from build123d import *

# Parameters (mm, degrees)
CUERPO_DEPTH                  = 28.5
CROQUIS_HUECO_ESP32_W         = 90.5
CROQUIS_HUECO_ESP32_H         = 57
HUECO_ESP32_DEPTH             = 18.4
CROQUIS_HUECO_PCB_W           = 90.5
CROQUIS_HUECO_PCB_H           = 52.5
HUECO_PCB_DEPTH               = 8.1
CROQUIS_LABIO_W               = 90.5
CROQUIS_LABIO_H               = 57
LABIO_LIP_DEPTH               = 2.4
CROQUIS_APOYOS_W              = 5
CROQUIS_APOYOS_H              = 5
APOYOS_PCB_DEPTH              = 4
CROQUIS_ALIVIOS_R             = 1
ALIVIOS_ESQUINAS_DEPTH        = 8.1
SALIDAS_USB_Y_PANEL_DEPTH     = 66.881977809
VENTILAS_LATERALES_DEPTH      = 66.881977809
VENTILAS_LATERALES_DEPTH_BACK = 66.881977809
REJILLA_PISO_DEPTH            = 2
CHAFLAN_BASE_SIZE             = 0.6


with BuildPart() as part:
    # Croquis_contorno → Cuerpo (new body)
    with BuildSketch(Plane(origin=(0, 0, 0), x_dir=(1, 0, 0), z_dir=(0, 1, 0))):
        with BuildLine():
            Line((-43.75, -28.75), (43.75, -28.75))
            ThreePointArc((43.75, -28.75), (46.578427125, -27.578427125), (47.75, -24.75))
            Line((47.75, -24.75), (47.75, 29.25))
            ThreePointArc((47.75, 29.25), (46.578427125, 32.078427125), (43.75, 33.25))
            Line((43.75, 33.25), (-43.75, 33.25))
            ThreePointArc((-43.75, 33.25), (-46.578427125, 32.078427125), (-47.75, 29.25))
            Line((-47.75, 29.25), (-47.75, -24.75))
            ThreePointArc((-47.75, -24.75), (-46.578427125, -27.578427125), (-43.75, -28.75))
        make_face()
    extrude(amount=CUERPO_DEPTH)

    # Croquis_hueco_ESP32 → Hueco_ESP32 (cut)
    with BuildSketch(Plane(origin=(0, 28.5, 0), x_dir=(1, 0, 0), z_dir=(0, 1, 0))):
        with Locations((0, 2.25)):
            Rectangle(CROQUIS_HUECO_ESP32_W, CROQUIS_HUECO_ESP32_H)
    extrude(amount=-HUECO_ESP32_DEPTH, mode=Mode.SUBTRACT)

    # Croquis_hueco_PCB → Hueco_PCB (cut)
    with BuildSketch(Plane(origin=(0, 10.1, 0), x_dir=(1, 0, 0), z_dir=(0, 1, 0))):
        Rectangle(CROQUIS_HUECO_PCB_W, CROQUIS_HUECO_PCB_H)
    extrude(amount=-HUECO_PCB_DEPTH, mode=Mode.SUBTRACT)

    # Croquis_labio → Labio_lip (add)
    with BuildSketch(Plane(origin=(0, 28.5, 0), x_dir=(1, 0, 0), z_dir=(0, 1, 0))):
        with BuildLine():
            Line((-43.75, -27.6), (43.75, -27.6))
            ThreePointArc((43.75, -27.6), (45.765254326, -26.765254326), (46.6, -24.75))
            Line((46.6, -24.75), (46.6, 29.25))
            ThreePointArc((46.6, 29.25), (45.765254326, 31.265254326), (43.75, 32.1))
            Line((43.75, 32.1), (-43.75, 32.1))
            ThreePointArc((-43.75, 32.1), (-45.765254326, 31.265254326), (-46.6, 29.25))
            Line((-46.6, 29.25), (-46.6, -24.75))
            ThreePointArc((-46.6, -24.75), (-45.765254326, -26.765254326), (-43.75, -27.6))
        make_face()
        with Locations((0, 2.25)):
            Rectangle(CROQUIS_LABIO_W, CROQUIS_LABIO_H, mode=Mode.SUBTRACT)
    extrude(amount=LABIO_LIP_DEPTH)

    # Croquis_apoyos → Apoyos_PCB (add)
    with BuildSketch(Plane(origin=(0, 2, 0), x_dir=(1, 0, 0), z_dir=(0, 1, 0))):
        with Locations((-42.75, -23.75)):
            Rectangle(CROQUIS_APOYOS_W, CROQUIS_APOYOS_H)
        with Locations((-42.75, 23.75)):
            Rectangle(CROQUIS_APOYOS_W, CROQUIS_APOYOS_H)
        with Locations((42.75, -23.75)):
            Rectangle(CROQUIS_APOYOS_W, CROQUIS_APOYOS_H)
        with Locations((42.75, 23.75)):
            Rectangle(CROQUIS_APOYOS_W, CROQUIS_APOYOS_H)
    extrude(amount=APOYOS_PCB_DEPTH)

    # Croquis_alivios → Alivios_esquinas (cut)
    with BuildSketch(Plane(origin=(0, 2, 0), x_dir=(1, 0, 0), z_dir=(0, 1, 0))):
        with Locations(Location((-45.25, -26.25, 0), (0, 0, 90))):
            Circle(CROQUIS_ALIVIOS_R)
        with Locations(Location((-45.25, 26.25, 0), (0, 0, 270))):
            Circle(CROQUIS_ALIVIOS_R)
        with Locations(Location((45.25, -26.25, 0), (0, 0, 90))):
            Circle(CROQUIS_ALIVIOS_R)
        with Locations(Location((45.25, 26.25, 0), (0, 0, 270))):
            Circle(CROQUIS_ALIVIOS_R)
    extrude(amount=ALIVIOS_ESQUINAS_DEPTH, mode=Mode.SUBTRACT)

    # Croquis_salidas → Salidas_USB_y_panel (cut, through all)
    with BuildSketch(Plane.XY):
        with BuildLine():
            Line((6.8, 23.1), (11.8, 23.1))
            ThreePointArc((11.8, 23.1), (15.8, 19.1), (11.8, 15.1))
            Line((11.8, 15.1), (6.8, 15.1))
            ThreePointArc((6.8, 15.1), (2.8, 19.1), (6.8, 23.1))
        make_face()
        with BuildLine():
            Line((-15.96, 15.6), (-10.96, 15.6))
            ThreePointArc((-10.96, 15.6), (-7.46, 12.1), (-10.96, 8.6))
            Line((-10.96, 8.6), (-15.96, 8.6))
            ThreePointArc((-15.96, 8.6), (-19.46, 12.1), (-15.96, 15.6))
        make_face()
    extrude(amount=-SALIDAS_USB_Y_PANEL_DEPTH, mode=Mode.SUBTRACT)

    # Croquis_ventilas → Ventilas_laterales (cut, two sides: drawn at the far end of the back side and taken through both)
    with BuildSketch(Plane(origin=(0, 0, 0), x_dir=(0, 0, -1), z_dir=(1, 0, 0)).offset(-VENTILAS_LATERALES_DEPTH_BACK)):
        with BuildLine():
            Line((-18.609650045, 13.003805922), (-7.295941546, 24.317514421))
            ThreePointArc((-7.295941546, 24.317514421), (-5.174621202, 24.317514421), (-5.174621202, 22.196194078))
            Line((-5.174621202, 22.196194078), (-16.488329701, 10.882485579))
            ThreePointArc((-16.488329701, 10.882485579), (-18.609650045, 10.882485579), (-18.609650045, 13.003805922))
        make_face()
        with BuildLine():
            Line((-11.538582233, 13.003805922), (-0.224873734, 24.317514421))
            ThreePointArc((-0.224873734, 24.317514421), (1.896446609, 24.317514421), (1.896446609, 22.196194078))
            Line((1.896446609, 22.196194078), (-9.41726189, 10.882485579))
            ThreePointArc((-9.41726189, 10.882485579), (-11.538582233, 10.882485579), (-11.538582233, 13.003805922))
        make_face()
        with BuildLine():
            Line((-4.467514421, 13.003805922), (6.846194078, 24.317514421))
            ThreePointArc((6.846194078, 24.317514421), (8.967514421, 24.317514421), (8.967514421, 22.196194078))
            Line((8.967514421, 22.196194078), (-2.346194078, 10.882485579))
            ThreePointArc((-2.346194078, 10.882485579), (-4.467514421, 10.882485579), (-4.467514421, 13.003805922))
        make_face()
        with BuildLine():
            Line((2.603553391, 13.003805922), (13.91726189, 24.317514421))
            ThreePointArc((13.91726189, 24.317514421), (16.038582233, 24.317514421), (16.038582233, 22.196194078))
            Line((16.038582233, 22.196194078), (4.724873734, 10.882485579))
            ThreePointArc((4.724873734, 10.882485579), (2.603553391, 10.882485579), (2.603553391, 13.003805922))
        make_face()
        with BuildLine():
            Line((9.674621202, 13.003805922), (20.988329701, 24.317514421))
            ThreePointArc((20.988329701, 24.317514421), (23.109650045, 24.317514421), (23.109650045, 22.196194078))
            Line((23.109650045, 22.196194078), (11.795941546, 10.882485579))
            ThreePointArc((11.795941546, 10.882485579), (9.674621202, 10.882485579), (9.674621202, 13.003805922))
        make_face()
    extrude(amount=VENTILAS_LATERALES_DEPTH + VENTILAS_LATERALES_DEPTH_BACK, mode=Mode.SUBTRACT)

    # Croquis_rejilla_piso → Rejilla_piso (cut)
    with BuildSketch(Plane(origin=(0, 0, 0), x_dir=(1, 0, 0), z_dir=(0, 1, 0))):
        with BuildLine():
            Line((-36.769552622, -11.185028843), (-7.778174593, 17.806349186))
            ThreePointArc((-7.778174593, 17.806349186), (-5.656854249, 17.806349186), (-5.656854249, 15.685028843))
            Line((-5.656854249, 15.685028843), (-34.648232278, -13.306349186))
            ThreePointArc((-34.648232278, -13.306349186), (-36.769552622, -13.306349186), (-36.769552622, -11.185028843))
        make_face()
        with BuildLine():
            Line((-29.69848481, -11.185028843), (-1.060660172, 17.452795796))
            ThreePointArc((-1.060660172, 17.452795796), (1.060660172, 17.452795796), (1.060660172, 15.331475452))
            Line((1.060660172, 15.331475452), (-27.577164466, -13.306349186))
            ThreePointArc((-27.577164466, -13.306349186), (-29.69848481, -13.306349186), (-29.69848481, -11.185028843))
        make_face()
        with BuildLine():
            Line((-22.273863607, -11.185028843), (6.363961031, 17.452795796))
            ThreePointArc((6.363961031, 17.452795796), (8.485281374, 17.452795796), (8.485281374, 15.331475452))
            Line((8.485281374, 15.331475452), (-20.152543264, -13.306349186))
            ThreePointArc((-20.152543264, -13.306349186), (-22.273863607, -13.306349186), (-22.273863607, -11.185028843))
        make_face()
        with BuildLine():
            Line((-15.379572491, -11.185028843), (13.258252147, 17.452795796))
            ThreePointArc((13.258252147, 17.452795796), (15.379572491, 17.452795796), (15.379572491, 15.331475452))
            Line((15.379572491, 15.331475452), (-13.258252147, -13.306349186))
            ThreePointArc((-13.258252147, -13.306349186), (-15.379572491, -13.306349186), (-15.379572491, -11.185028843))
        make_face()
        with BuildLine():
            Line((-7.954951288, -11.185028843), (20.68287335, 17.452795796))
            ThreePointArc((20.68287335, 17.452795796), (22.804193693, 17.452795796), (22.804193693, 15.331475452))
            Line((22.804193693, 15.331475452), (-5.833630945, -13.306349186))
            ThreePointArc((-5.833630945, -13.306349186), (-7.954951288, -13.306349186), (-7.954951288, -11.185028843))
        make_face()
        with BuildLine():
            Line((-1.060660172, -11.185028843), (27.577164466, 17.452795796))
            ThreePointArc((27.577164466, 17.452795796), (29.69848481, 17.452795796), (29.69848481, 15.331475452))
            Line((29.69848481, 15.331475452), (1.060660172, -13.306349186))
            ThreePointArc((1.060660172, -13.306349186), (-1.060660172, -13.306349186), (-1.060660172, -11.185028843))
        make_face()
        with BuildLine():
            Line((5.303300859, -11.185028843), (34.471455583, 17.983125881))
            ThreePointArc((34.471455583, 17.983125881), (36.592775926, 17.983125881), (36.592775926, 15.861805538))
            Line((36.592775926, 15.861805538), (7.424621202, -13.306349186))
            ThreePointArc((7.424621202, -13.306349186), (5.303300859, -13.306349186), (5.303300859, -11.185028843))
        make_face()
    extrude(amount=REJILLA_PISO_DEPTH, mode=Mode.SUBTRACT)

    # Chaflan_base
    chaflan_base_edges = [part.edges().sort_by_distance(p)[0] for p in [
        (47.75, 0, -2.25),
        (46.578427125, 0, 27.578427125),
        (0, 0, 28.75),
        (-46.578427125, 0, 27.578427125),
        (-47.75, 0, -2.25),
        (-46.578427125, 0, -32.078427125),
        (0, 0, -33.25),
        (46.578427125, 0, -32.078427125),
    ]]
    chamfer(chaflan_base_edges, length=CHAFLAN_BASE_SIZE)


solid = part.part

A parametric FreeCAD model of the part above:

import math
import FreeCAD as App
import Part
import Sketcher
Q = App.Units.Quantity


def edges_at(feature, points):
    """Names of the edges that pass closest to the given points."""
    edges = feature.Shape.Edges
    near = lambda p: min(range(len(edges)), key=lambda i: edges[i].distToShape(Part.Vertex(*p))[0])
    return sorted({f"Edge{near(p) + 1}" for p in points})


def add_polygon(sketch, points):
    """Adds a closed chain of lines whose ends are joined by coincident constraints."""
    first, n = sketch.GeometryCount, len(points)
    for a, b in zip(points, points[1:] + points[:1]):
        sketch.addGeometry(Part.LineSegment(App.Vector(*a, 0), App.Vector(*b, 0)), False)
    for i in range(n):
        sketch.addConstraint(Sketcher.Constraint("Coincident", first + i, 2, first + (i + 1) % n, 1))

doc = App.newDocument("Part")
body = doc.addObject("PartDesign::Body", "Body")

# Sketch on XZ plane
sketch1 = body.newObject("Sketcher::SketchObject", "Sketch")
sketch1.AttachmentSupport = (doc.getObject("XZ_Plane"), [""])
sketch1.MapMode = "FlatFace"
sketch1.addGeometry([
    Part.LineSegment(App.Vector(-43.8, 28.8, 0), App.Vector(43.8, 28.8, 0)),  # 0
    Part.ArcOfCircle(Part.Circle(App.Vector(43.8, 24.8, 0), App.Vector(0, 0, 1), 4), math.radians(0), math.radians(90)),  # 1
    Part.LineSegment(App.Vector(47.8, 24.8, 0), App.Vector(47.8, -29.2, 0)),  # 2
    Part.ArcOfCircle(Part.Circle(App.Vector(43.8, -29.3, 0), App.Vector(0, 0, 1), 4), math.radians(-90), math.radians(0)),  # 3
    Part.LineSegment(App.Vector(43.8, -33.2, 0), App.Vector(-43.8, -33.2, 0)),  # 4
    Part.ArcOfCircle(Part.Circle(App.Vector(-43.8, -29.3, 0), App.Vector(0, 0, 1), 4), math.radians(180), math.radians(270)),  # 5
    Part.LineSegment(App.Vector(-47.8, -29.2, 0), App.Vector(-47.8, 24.8, 0)),  # 6
    Part.ArcOfCircle(Part.Circle(App.Vector(-43.8, 24.8, 0), App.Vector(0, 0, 1), 4), math.radians(90), math.radians(180)),  # 7
], False)
sketch1.addConstraint([
    Sketcher.Constraint("Tangent", 0, 2, 1, 2),
    Sketcher.Constraint("Tangent", 1, 1, 2, 1),
    Sketcher.Constraint("Tangent", 2, 2, 3, 2),
    Sketcher.Constraint("Tangent", 3, 1, 4, 1),
    Sketcher.Constraint("Tangent", 4, 2, 5, 2),
    Sketcher.Constraint("Tangent", 5, 1, 6, 1),
    Sketcher.Constraint("Tangent", 6, 2, 7, 2),
    Sketcher.Constraint("Tangent", 7, 1, 0, 1),
    Sketcher.Constraint("Horizontal", 0),
    Sketcher.Constraint("Vertical", 2),
    Sketcher.Constraint("Horizontal", 4),
    Sketcher.Constraint("Vertical", 6),
    Sketcher.Constraint("Equal", 1, 3),
    Sketcher.Constraint("Equal", 3, 5),
    Sketcher.Constraint("Equal", 5, 7),
    Sketcher.Constraint("Radius", 1, 4.0),
    Sketcher.Constraint("DistanceY", 2, 2, 2, 1, 54.0),
    Sketcher.Constraint("DistanceX", 0, 1, 0, 2, 87.5),
    Sketcher.Constraint("DistanceX", -1, 1, 1, 3, 43.75),
    Sketcher.Constraint("DistanceY", -1, 1, 1, 3, 24.75),
])
pad1 = body.newObject("PartDesign::Pad", "Pad")
pad1.Profile = sketch1
pad1.Length = 28.5
pad1.Reversed = True

# Sketch on XZ plane
sketch2 = body.newObject("Sketcher::SketchObject", "Sketch001")
sketch2.AttachmentSupport = (doc.getObject("XZ_Plane"), [""])
sketch2.MapMode = "FlatFace"
sketch2.AttachmentOffset = App.Placement(App.Vector(0, 0, -28.5), App.Rotation())
add_polygon(sketch2, [(-45, -31), (-45, 26), (45, 26), (45, -31)])  # lines 0-3
sketch2.addConstraint([
    Sketcher.Constraint("Vertical", 0),
    Sketcher.Constraint("Horizontal", 1),
    Sketcher.Constraint("Vertical", 2),
    Sketcher.Constraint("Horizontal", 3),
    Sketcher.Constraint("DistanceY", 0, 1, 0, 2, 57.0),
    Sketcher.Constraint("DistanceX", 1, 1, 1, 2, 90.5),
    Sketcher.Constraint("DistanceX", 0, 2, -1, 1, 45.25),
    Sketcher.Constraint("DistanceY", -1, 1, 0, 2, 26.25),
])
pocket1 = body.newObject("PartDesign::Pocket", "Pocket")
pocket1.Profile = sketch2
pocket1.Length = 18.4
pocket1.Reversed = True

# Sketch on XZ plane
sketch3 = body.newObject("Sketcher::SketchObject", "Sketch002")
sketch3.AttachmentSupport = (doc.getObject("XZ_Plane"), [""])
sketch3.MapMode = "FlatFace"
sketch3.AttachmentOffset = App.Placement(App.Vector(0, 0, -10.1), App.Rotation())
add_polygon(sketch3, [(-45, -26), (-45, 26), (45, 26), (45, -26)])  # lines 0-3
sketch3.addConstraint([
    Sketcher.Constraint("Vertical", 0),
    Sketcher.Constraint("Horizontal", 1),
    Sketcher.Constraint("Vertical", 2),
    Sketcher.Constraint("Horizontal", 3),
    Sketcher.Constraint("Symmetric", 0, 2, 2, 2, -1, 1),
    Sketcher.Constraint("DistanceX", 1, 1, 1, 2, 90.5),
    Sketcher.Constraint("DistanceY", 0, 1, 0, 2, 52.5),
])
pocket2 = body.newObject("PartDesign::Pocket", "Pocket001")
pocket2.Profile = sketch3
pocket2.Length = 8.1
pocket2.Reversed = True

# Sketch on XZ plane
sketch4 = body.newObject("Sketcher::SketchObject", "Sketch003")
sketch4.AttachmentSupport = (doc.getObject("XZ_Plane"), [""])
sketch4.MapMode = "FlatFace"
sketch4.AttachmentOffset = App.Placement(App.Vector(0, 0, -28.5), App.Rotation())
sketch4.addGeometry(Part.LineSegment(App.Vector(-43.8, 27.6, 0), App.Vector(43.8, 27.6, 0)), False)  # 0
sketch4.addGeometry(Part.ArcOfCircle(Part.Circle(App.Vector(43.7, 24.7, 0), App.Vector(0, 0, 1), 2.9), math.radians(0), math.radians(90)), False)  # 1
sketch4.addGeometry(Part.LineSegment(App.Vector(46.6, 24.8, 0), App.Vector(46.6, -29.2, 0)), False)  # 2
sketch4.addGeometry(Part.ArcOfCircle(Part.Circle(App.Vector(43.7, -29.2, 0), App.Vector(0, 0, 1), 2.9), math.radians(-90), math.radians(0)), False)  # 3
sketch4.addGeometry(Part.LineSegment(App.Vector(43.8, -32.1, 0), App.Vector(-43.8, -32.1, 0)), False)  # 4
sketch4.addGeometry(Part.ArcOfCircle(Part.Circle(App.Vector(-43.7, -29.2, 0), App.Vector(0, 0, 1), 2.9), math.radians(-180), math.radians(-90)), False)  # 5
sketch4.addGeometry(Part.LineSegment(App.Vector(-46.6, -29.2, 0), App.Vector(-46.6, 24.8, 0)), False)  # 6
sketch4.addGeometry(Part.ArcOfCircle(Part.Circle(App.Vector(-43.7, 24.7, 0), App.Vector(0, 0, 1), 2.9), math.radians(90), math.radians(180)), False)  # 7
add_polygon(sketch4, [(45.2, 26.2), (-45.2, 26.2), (-45.2, -30.8), (45.2, -30.8)])  # lines 8-11
sketch4.addConstraint([
    Sketcher.Constraint("Tangent", 0, 2, 1, 2),
    Sketcher.Constraint("Tangent", 1, 1, 2, 1),
    Sketcher.Constraint("Tangent", 2, 2, 3, 2),
    Sketcher.Constraint("Tangent", 3, 1, 4, 1),
    Sketcher.Constraint("Tangent", 4, 2, 5, 2),
    Sketcher.Constraint("Tangent", 5, 1, 6, 1),
    Sketcher.Constraint("Tangent", 6, 2, 7, 2),
    Sketcher.Constraint("Tangent", 7, 1, 0, 1),
    Sketcher.Constraint("Horizontal", 0),
    Sketcher.Constraint("Vertical", 2),
    Sketcher.Constraint("Horizontal", 4),
    Sketcher.Constraint("Vertical", 6),
    Sketcher.Constraint("Horizontal", 8),
    Sketcher.Constraint("Vertical", 9),
    Sketcher.Constraint("Horizontal", 10),
    Sketcher.Constraint("Vertical", 11),
    Sketcher.Constraint("Equal", 1, 3),
    Sketcher.Constraint("Equal", 3, 5),
    Sketcher.Constraint("Equal", 5, 7),
    Sketcher.Constraint("DistanceY", 2, 2, 2, 1, 54.0),
    Sketcher.Constraint("DistanceY", 9, 2, 9, 1, 57.0),
    Sketcher.Constraint("Radius", 1, 2.85),
    Sketcher.Constraint("DistanceX", 0, 1, 0, 2, 87.5),
    Sketcher.Constraint("DistanceX", 8, 2, 8, 1, 90.5),
    Sketcher.Constraint("DistanceY", -1, 1, 0, 2, 27.6),
    Sketcher.Constraint("DistanceX", -1, 1, 1, 1, 46.6),
    Sketcher.Constraint("DistanceY", 6, 2, 8, 2, 1.5),
    Sketcher.Constraint("DistanceX", 8, 2, 7, 1, 1.5),
])
pad2 = body.newObject("PartDesign::Pad", "Pad001")
pad2.Profile = sketch4
pad2.Length = 2.4
pad2.Reversed = True

# Sketch on XZ plane
sketch5 = body.newObject("Sketcher::SketchObject", "Sketch004")
sketch5.AttachmentSupport = (doc.getObject("XZ_Plane"), [""])
sketch5.MapMode = "FlatFace"
sketch5.AttachmentOffset = App.Placement(App.Vector(0, 0, -2), App.Rotation())
add_polygon(sketch5, [(-45, 21), (-45, 26), (-40, 26), (-40, 21)])  # lines 0-3
add_polygon(sketch5, [(-45, -26), (-45, -21), (-40, -21), (-40, -26)])  # lines 4-7
add_polygon(sketch5, [(40, 21), (40, 26), (45, 26), (45, 21)])  # lines 8-11
add_polygon(sketch5, [(40, -26), (40, -21), (45, -21), (45, -26)])  # lines 12-15
sketch5.addConstraint([
    Sketcher.Constraint("Vertical", 0),
    Sketcher.Constraint("Horizontal", 1),
    Sketcher.Constraint("Vertical", 2),
    Sketcher.Constraint("Horizontal", 3),
    Sketcher.Constraint("Vertical", 4),
    Sketcher.Constraint("Horizontal", 5),
    Sketcher.Constraint("Vertical", 6),
    Sketcher.Constraint("Horizontal", 7),
    Sketcher.Constraint("Vertical", 8),
    Sketcher.Constraint("Horizontal", 9),
    Sketcher.Constraint("Vertical", 10),
    Sketcher.Constraint("Horizontal", 11),
    Sketcher.Constraint("Vertical", 12),
    Sketcher.Constraint("Horizontal", 13),
    Sketcher.Constraint("Vertical", 14),
    Sketcher.Constraint("Horizontal", 15),
    Sketcher.Constraint("Symmetric", 6, 2, 8, 2, -1, 1),
    Sketcher.Constraint("Symmetric", 4, 2, 10, 2, -1, 1),
    Sketcher.Constraint("Symmetric", 2, 2, 12, 2, -1, 1),
    Sketcher.Constraint("Symmetric", 0, 2, 14, 2, -1, 1),
    Sketcher.Constraint("Symmetric", 1, 2, 8, 2, -2),
    Sketcher.Constraint("Symmetric", 3, 2, 10, 2, -2),
    Sketcher.Constraint("Equal", 15, 0),
    Sketcher.Constraint("DistanceX", 1, 1, 1, 2, 5.0),
    Sketcher.Constraint("DistanceY", 4, 2, 3, 2, 42.5),
    Sketcher.Constraint("DistanceX", 1, 2, 8, 2, 80.5),
])
pad3 = body.newObject("PartDesign::Pad", "Pad002")
pad3.Profile = sketch5
pad3.Length = 4
pad3.Reversed = True

# Sketch on XZ plane
sketch6 = body.newObject("Sketcher::SketchObject", "Sketch005")
sketch6.AttachmentSupport = (doc.getObject("XZ_Plane"), [""])
sketch6.MapMode = "FlatFace"
sketch6.AttachmentOffset = App.Placement(App.Vector(0, 0, -2), App.Rotation())
sketch6.addGeometry([
    Part.Circle(App.Vector(-45.2, 26.2, 0), App.Vector(0, 0, 1), 1),
    Part.Circle(App.Vector(-45.2, -26.2, 0), App.Vector(0, 0, 1), 1),
    Part.Circle(App.Vector(45.2, 26.2, 0), App.Vector(0, 0, 1), 1),
    Part.Circle(App.Vector(45.2, -26.2, 0), App.Vector(0, 0, 1), 1),
], False)
sketch6.addConstraint([
    Sketcher.Constraint("Equal", 0, 1),
    Sketcher.Constraint("Equal", 1, 2),
    Sketcher.Constraint("Equal", 2, 3),
    Sketcher.Constraint("Symmetric", 1, 3, 2, 3, -1, 1),
    Sketcher.Constraint("Symmetric", 0, 3, 3, 3, -1, 1),
    Sketcher.Constraint("Symmetric", 0, 3, 2, 3, -2),
    Sketcher.Constraint("Diameter", 0, 2.0),
    Sketcher.Constraint("DistanceY", 1, 3, 0, 3, 52.5),
    Sketcher.Constraint("DistanceX", 0, 3, 2, 3, 90.5),
])
pocket3 = body.newObject("PartDesign::Pocket", "Pocket002")
pocket3.Profile = sketch6
pocket3.Length = 8.1

# Sketch on XY plane
sketch7 = body.newObject("Sketcher::SketchObject", "Sketch006")
sketch7.AttachmentSupport = (doc.getObject("XY_Plane"), [""])
sketch7.MapMode = "FlatFace"
sketch7.addGeometry([
    Part.LineSegment(App.Vector(11.8, 23.1, 0), App.Vector(6.8, 23.1, 0)),  # 0
    Part.ArcOfCircle(Part.Circle(App.Vector(6.8, 19.1, 0), App.Vector(0, 0, 1), 4), math.radians(90), math.radians(270)),  # 1
    Part.LineSegment(App.Vector(6.8, 15.1, 0), App.Vector(11.8, 15.1, 0)),  # 2
    Part.ArcOfCircle(Part.Circle(App.Vector(11.8, 19.1, 0), App.Vector(0, 0, 1), 4), math.radians(-90), math.radians(90)),  # 3
    Part.LineSegment(App.Vector(-11, 15.6, 0), App.Vector(-16, 15.6, 0)),  # 4
    Part.ArcOfCircle(Part.Circle(App.Vector(-16, 12.1, 0), App.Vector(0, 0, 1), 3.5), math.radians(90), math.radians(270)),  # 5
    Part.LineSegment(App.Vector(-16, 8.6, 0), App.Vector(-11, 8.6, 0)),  # 6
    Part.ArcOfCircle(Part.Circle(App.Vector(-11, 12.1, 0), App.Vector(0, 0, 1), 3.5), math.radians(-90), math.radians(90)),  # 7
], False)
sketch7.addConstraint([
    Sketcher.Constraint("Tangent", 0, 2, 1, 1),
    Sketcher.Constraint("Tangent", 1, 2, 2, 1),
    Sketcher.Constraint("Tangent", 2, 2, 3, 1),
    Sketcher.Constraint("Tangent", 3, 2, 0, 1),
    Sketcher.Constraint("Tangent", 4, 2, 5, 1),
    Sketcher.Constraint("Tangent", 5, 2, 6, 1),
    Sketcher.Constraint("Tangent", 6, 2, 7, 1),
    Sketcher.Constraint("Tangent", 7, 2, 4, 1),
    Sketcher.Constraint("Horizontal", 0),
    Sketcher.Constraint("Horizontal", 2),
    Sketcher.Constraint("Horizontal", 4),
    Sketcher.Constraint("Horizontal", 6),
    Sketcher.Constraint("Equal", 2, 4),
    Sketcher.Constraint("Radius", 1, 4.0),
    Sketcher.Constraint("Radius", 5, 3.5),
    Sketcher.Constraint("DistanceX", 0, 2, 0, 1, 5.0),
    Sketcher.Constraint("DistanceY", 5, 3, 1, 3, 7.0),
    Sketcher.Constraint("DistanceX", -1, 1, 1, 3, 6.8),
    Sketcher.Constraint("DistanceY", -1, 1, 1, 3, 19.1),
    Sketcher.Constraint("DistanceX", 5, 3, -1, 1, 15.96),
])
pocket4 = body.newObject("PartDesign::Pocket", "Pocket003")
pocket4.Profile = sketch7
pocket4.Type = "ThroughAll"

# Sketch on YZ plane
sketch8 = body.newObject("Sketcher::SketchObject", "Sketch007")
sketch8.AttachmentSupport = (doc.getObject("YZ_Plane"), [""])
sketch8.MapMode = "FlatFace"
sketch8.addGeometry([
    Part.LineSegment(App.Vector(24.3, 7.3, 0), App.Vector(13, 18.6, 0)),  # 0
    Part.ArcOfCircle(Part.Circle(App.Vector(11.9, 17.5, 0), App.Vector(0, 0, 1), 1.5), math.radians(45), math.radians(225)),  # 1
    Part.LineSegment(App.Vector(10.9, 16.5, 0), App.Vector(22.2, 5.2, 0)),  # 2
    Part.ArcOfCircle(Part.Circle(App.Vector(23.3, 6.2, 0), App.Vector(0, 0, 1), 1.5), math.radians(-135), math.radians(45)),  # 3
    Part.LineSegment(App.Vector(24.3, 0.2, 0), App.Vector(13, 11.5, 0)),  # 4
    Part.ArcOfCircle(Part.Circle(App.Vector(11.9, 10.5, 0), App.Vector(0, 0, 1), 1.5), math.radians(45), math.radians(225)),  # 5
    Part.LineSegment(App.Vector(10.9, 9.4, 0), App.Vector(22.2, -1.9, 0)),  # 6
    Part.ArcOfCircle(Part.Circle(App.Vector(23.3, -0.8, 0), App.Vector(0, 0, 1), 1.5), math.radians(-135), math.radians(45)),  # 7
    Part.LineSegment(App.Vector(24.3, -6.8, 0), App.Vector(13, 4.5, 0)),  # 8
    Part.ArcOfCircle(Part.Circle(App.Vector(11.9, 3.4, 0), App.Vector(0, 0, 1), 1.5), math.radians(45), math.radians(225)),  # 9
    Part.LineSegment(App.Vector(10.9, 2.3, 0), App.Vector(22.2, -9, 0)),  # 10
    Part.ArcOfCircle(Part.Circle(App.Vector(23.3, -7.9, 0), App.Vector(0, 0, 1), 1.5), math.radians(-135), math.radians(45)),  # 11
    Part.LineSegment(App.Vector(24.3, -13.9, 0), App.Vector(13, -2.6, 0)),  # 12
    Part.ArcOfCircle(Part.Circle(App.Vector(11.9, -3.7, 0), App.Vector(0, 0, 1), 1.5), math.radians(45), math.radians(225)),  # 13
    Part.LineSegment(App.Vector(10.9, -4.7, 0), App.Vector(22.2, -16, 0)),  # 14
    Part.ArcOfCircle(Part.Circle(App.Vector(23.3, -15, 0), App.Vector(0, 0, 1), 1.5), math.radians(-135), math.radians(45)),  # 15
    Part.LineSegment(App.Vector(24.3, -21, 0), App.Vector(13, -9.7, 0)),  # 16
    Part.ArcOfCircle(Part.Circle(App.Vector(11.9, -10.7, 0), App.Vector(0, 0, 1), 1.5), math.radians(45), math.radians(225)),  # 17
    Part.LineSegment(App.Vector(10.9, -11.8, 0), App.Vector(22.2, -23.1, 0)),  # 18
    Part.ArcOfCircle(Part.Circle(App.Vector(23.3, -22, 0), App.Vector(0, 0, 1), 1.5), math.radians(-135), math.radians(45)),  # 19
], False)
sketch8.addConstraint([
    Sketcher.Constraint("Tangent", 0, 2, 1, 1),
    Sketcher.Constraint("Tangent", 1, 2, 2, 1),
    Sketcher.Constraint("Tangent", 2, 2, 3, 1),
    Sketcher.Constraint("Tangent", 3, 2, 0, 1),
    Sketcher.Constraint("Tangent", 4, 2, 5, 1),
    Sketcher.Constraint("Tangent", 5, 2, 6, 1),
    Sketcher.Constraint("Tangent", 6, 2, 7, 1),
    Sketcher.Constraint("Tangent", 7, 2, 4, 1),
    Sketcher.Constraint("Tangent", 8, 2, 9, 1),
    Sketcher.Constraint("Tangent", 9, 2, 10, 1),
    Sketcher.Constraint("Tangent", 10, 2, 11, 1),
    Sketcher.Constraint("Tangent", 11, 2, 8, 1),
    Sketcher.Constraint("Tangent", 12, 2, 13, 1),
    Sketcher.Constraint("Tangent", 13, 2, 14, 1),
    Sketcher.Constraint("Tangent", 14, 2, 15, 1),
    Sketcher.Constraint("Tangent", 15, 2, 12, 1),
    Sketcher.Constraint("Tangent", 16, 2, 17, 1),
    Sketcher.Constraint("Tangent", 17, 2, 18, 1),
    Sketcher.Constraint("Tangent", 18, 2, 19, 1),
    Sketcher.Constraint("Tangent", 19, 2, 16, 1),
    Sketcher.Constraint("Equal", 1, 3),
    Sketcher.Constraint("Equal", 3, 5),
    Sketcher.Constraint("Equal", 5, 7),
    Sketcher.Constraint("Equal", 7, 9),
    Sketcher.Constraint("Equal", 9, 11),
    Sketcher.Constraint("Equal", 11, 13),
    Sketcher.Constraint("Equal", 13, 15),
    Sketcher.Constraint("Equal", 15, 17),
    Sketcher.Constraint("Equal", 17, 19),
    Sketcher.Constraint("Parallel", 2, 4),
    Sketcher.Constraint("Parallel", 6, 8),
    Sketcher.Constraint("Parallel", 10, 12),
    Sketcher.Constraint("Parallel", 14, 16),
    Sketcher.Constraint("Vertical", 1, 3, 5, 3),
    Sketcher.Constraint("Vertical", 3, 3, 7, 3),
    Sketcher.Constraint("Vertical", 5, 3, 9, 3),
    Sketcher.Constraint("Vertical", 7, 3, 11, 3),
    Sketcher.Constraint("Vertical", 9, 3, 13, 3),
    Sketcher.Constraint("Vertical", 11, 3, 15, 3),
    Sketcher.Constraint("Vertical", 13, 3, 17, 3),
    Sketcher.Constraint("Vertical", 15, 3, 19, 3),
    Sketcher.Constraint("Radius", 1, 1.5),
    Sketcher.Constraint("Angle", 0, Q("135 deg")),
    Sketcher.Constraint("Distance", 0, 16.0),
    Sketcher.Constraint("DistanceY", 2, 2, 5, 3, 5.303301),
    Sketcher.Constraint("DistanceY", -1, 1, 1, 3, 17.54899),
    Sketcher.Constraint("DistanceY", 17, 3, -1, 1, 10.735281),
    Sketcher.Constraint("DistanceY", 15, 2, -1, 1, 13.917262),
    Sketcher.Constraint("DistanceY", 7, 3, 9, 3, 4.242641),
    Sketcher.Constraint("DistanceX", -1, 1, 1, 3, 11.943146),
])
pocket5 = body.newObject("PartDesign::Pocket", "Pocket004")
pocket5.Profile = sketch8
pocket5.Type = "ThroughAll"
pocket5.Midplane = True

# Sketch on XZ plane
sketch9 = body.newObject("Sketcher::SketchObject", "Sketch008")
sketch9.AttachmentSupport = (doc.getObject("XZ_Plane"), [""])
sketch9.MapMode = "FlatFace"
sketch9.addGeometry([
    Part.LineSegment(App.Vector(-7.8, -17.8, 0), App.Vector(-36.8, 11.2, 0)),  # 0
    Part.ArcOfCircle(Part.Circle(App.Vector(-35.7, 12.2, 0), App.Vector(0, 0, 1), 1.5), math.radians(45), math.radians(225)),  # 1
    Part.LineSegment(App.Vector(-34.6, 13.3, 0), App.Vector(-5.7, -15.7, 0)),  # 2
    Part.ArcOfCircle(Part.Circle(App.Vector(-6.7, -16.7, 0), App.Vector(0, 0, 1), 1.5), math.radians(-135), math.radians(45)),  # 3
    Part.LineSegment(App.Vector(-1.1, -17.5, 0), App.Vector(-29.7, 11.2, 0)),  # 4
    Part.ArcOfCircle(Part.Circle(App.Vector(-28.6, 12.2, 0), App.Vector(0, 0, 1), 1.5), math.radians(45), math.radians(225)),  # 5
    Part.LineSegment(App.Vector(-27.6, 13.3, 0), App.Vector(1.1, -15.3, 0)),  # 6
    Part.ArcOfCircle(Part.Circle(App.Vector(0, -16.4, 0), App.Vector(0, 0, 1), 1.5), math.radians(-135), math.radians(45)),  # 7
    Part.LineSegment(App.Vector(6.4, -17.5, 0), App.Vector(-22.3, 11.2, 0)),  # 8
    Part.ArcOfCircle(Part.Circle(App.Vector(-21.2, 12.2, 0), App.Vector(0, 0, 1), 1.5), math.radians(45), math.radians(225)),  # 9
    Part.LineSegment(App.Vector(-20.2, 13.3, 0), App.Vector(8.5, -15.3, 0)),  # 10
    Part.ArcOfCircle(Part.Circle(App.Vector(7.4, -16.4, 0), App.Vector(0, 0, 1), 1.5), math.radians(-135), math.radians(45)),  # 11
    Part.LineSegment(App.Vector(13.3, -17.5, 0), App.Vector(-15.4, 11.2, 0)),  # 12
    Part.ArcOfCircle(Part.Circle(App.Vector(-14.3, 12.2, 0), App.Vector(0, 0, 1), 1.5), math.radians(45), math.radians(225)),  # 13
    Part.LineSegment(App.Vector(-13.3, 13.3, 0), App.Vector(15.4, -15.3, 0)),  # 14
    Part.ArcOfCircle(Part.Circle(App.Vector(14.3, -16.4, 0), App.Vector(0, 0, 1), 1.5), math.radians(-135), math.radians(45)),  # 15
    Part.LineSegment(App.Vector(20.7, -17.5, 0), App.Vector(-8, 11.2, 0)),  # 16
    Part.ArcOfCircle(Part.Circle(App.Vector(-6.9, 12.2, 0), App.Vector(0, 0, 1), 1.5), math.radians(45), math.radians(225)),  # 17
    Part.LineSegment(App.Vector(-5.8, 13.3, 0), App.Vector(22.8, -15.3, 0)),  # 18
    Part.ArcOfCircle(Part.Circle(App.Vector(21.7, -16.4, 0), App.Vector(0, 0, 1), 1.5), math.radians(-135), math.radians(45)),  # 19
    Part.LineSegment(App.Vector(27.6, -17.5, 0), App.Vector(-1.1, 11.2, 0)),  # 20
    Part.ArcOfCircle(Part.Circle(App.Vector(0, 12.2, 0), App.Vector(0, 0, 1), 1.5), math.radians(45), math.radians(225)),  # 21
    Part.LineSegment(App.Vector(1.1, 13.3, 0), App.Vector(29.7, -15.3, 0)),  # 22
    Part.ArcOfCircle(Part.Circle(App.Vector(28.6, -16.4, 0), App.Vector(0, 0, 1), 1.5), math.radians(-135), math.radians(45)),  # 23
    Part.LineSegment(App.Vector(34.5, -18, 0), App.Vector(5.3, 11.2, 0)),  # 24
    Part.ArcOfCircle(Part.Circle(App.Vector(6.4, 12.2, 0), App.Vector(0, 0, 1), 1.5), math.radians(45), math.radians(225)),  # 25
    Part.LineSegment(App.Vector(7.4, 13.3, 0), App.Vector(36.6, -15.9, 0)),  # 26
    Part.ArcOfCircle(Part.Circle(App.Vector(35.5, -16.9, 0), App.Vector(0, 0, 1), 1.5), math.radians(-135), math.radians(45)),  # 27
], False)
sketch9.addConstraint([
    Sketcher.Constraint("Tangent", 0, 2, 1, 2),
    Sketcher.Constraint("Tangent", 1, 1, 2, 1),
    Sketcher.Constraint("Tangent", 2, 2, 3, 2),
    Sketcher.Constraint("Tangent", 3, 1, 0, 1),
    Sketcher.Constraint("Tangent", 4, 2, 5, 2),
    Sketcher.Constraint("Tangent", 5, 1, 6, 1),
    Sketcher.Constraint("Tangent", 6, 2, 7, 2),
    Sketcher.Constraint("Tangent", 7, 1, 4, 1),
    Sketcher.Constraint("Tangent", 8, 2, 9, 2),
    Sketcher.Constraint("Tangent", 9, 1, 10, 1),
    Sketcher.Constraint("Tangent", 10, 2, 11, 2),
    Sketcher.Constraint("Tangent", 11, 1, 8, 1),
    Sketcher.Constraint("Tangent", 12, 2, 13, 2),
    Sketcher.Constraint("Tangent", 13, 1, 14, 1),
    Sketcher.Constraint("Tangent", 14, 2, 15, 2),
    Sketcher.Constraint("Tangent", 15, 1, 12, 1),
    Sketcher.Constraint("Tangent", 16, 2, 17, 2),
    Sketcher.Constraint("Tangent", 17, 1, 18, 1),
    Sketcher.Constraint("Tangent", 18, 2, 19, 2),
    Sketcher.Constraint("Tangent", 19, 1, 16, 1),
    Sketcher.Constraint("Tangent", 20, 2, 21, 2),
    Sketcher.Constraint("Tangent", 21, 1, 22, 1),
    Sketcher.Constraint("Tangent", 22, 2, 23, 2),
    Sketcher.Constraint("Tangent", 23, 1, 20, 1),
    Sketcher.Constraint("Tangent", 24, 2, 25, 2),
    Sketcher.Constraint("Tangent", 25, 1, 26, 1),
    Sketcher.Constraint("Tangent", 26, 2, 27, 2),
    Sketcher.Constraint("Tangent", 27, 1, 24, 1),
    Sketcher.Constraint("Equal", 1, 3),
    Sketcher.Constraint("Equal", 3, 5),
    Sketcher.Constraint("Equal", 5, 7),
    Sketcher.Constraint("Equal", 7, 9),
    Sketcher.Constraint("Equal", 9, 11),
    Sketcher.Constraint("Equal", 11, 13),
    Sketcher.Constraint("Equal", 13, 15),
    Sketcher.Constraint("Equal", 15, 17),
    Sketcher.Constraint("Equal", 17, 19),
    Sketcher.Constraint("Equal", 19, 21),
    Sketcher.Constraint("Equal", 21, 23),
    Sketcher.Constraint("Equal", 23, 25),
    Sketcher.Constraint("Equal", 25, 27),
    Sketcher.Constraint("PointOnObject", 7, 3, -2),
    Sketcher.Constraint("PointOnObject", 21, 3, -2),
    Sketcher.Constraint("Parallel", 2, 4),
    Sketcher.Constraint("Parallel", 6, 8),
    Sketcher.Constraint("Parallel", 10, 12),
    Sketcher.Constraint("Parallel", 14, 16),
    Sketcher.Constraint("Parallel", 18, 20),
    Sketcher.Constraint("Parallel", 22, 24),
    Sketcher.Constraint("Horizontal", 1, 3, 5, 3),
    Sketcher.Constraint("Horizontal", 5, 3, 9, 3),
    Sketcher.Constraint("Horizontal", 7, 3, 11, 3),
    Sketcher.Constraint("Horizontal", 9, 3, 13, 3),
    Sketcher.Constraint("Horizontal", 11, 3, 15, 3),
    Sketcher.Constraint("Horizontal", 13, 3, 17, 3),
    Sketcher.Constraint("Horizontal", 15, 3, 19, 3),
    Sketcher.Constraint("Horizontal", 17, 3, 21, 3),
    Sketcher.Constraint("Horizontal", 19, 3, 23, 3),
    Sketcher.Constraint("Horizontal", 21, 3, 25, 3),
    Sketcher.Constraint("Vertical", 25, 3, 11, 1),
    Sketcher.Constraint("Radius", 1, 1.5),
    Sketcher.Constraint("Angle", 0, Q("135 deg")),
    Sketcher.Constraint("Distance", 0, 41.0),
    Sketcher.Constraint("Distance", 4, 40.5),
    Sketcher.Constraint("Distance", 24, 41.25),
    Sketcher.Constraint("DistanceX", -1, 1, 24, 2, 5.303301),
    Sketcher.Constraint("DistanceX", 1, 3, 17, 3, 28.814601),
    Sketcher.Constraint("DistanceX", 13, 1, 16, 2, 5.303301),
    Sketcher.Constraint("DistanceY", -1, 1, 1, 3, 12.245689),
    Sketcher.Constraint("DistanceX", 17, 3, -1, 1, 6.894291),
])
pocket6 = body.newObject("PartDesign::Pocket", "Pocket005")
pocket6.Profile = sketch9
pocket6.Length = 2
doc.recompute()

chamfer = body.newObject("PartDesign::Chamfer", "Chamfer")
chamfer.Base = (pocket6, edges_at(pocket6, [
    (47.75, 0, -2.25),
    (46.578, 0, 27.578),
    (0, 0, 28.75),
    (-46.578, 0, 27.578),
    (-47.75, 0, -2.25),
    (-46.578, 0, -32.078),
    (0, 0, -33.25),
    (46.578, 0, -32.078),
]))
chamfer.Size = 0.6

doc.recompute()
